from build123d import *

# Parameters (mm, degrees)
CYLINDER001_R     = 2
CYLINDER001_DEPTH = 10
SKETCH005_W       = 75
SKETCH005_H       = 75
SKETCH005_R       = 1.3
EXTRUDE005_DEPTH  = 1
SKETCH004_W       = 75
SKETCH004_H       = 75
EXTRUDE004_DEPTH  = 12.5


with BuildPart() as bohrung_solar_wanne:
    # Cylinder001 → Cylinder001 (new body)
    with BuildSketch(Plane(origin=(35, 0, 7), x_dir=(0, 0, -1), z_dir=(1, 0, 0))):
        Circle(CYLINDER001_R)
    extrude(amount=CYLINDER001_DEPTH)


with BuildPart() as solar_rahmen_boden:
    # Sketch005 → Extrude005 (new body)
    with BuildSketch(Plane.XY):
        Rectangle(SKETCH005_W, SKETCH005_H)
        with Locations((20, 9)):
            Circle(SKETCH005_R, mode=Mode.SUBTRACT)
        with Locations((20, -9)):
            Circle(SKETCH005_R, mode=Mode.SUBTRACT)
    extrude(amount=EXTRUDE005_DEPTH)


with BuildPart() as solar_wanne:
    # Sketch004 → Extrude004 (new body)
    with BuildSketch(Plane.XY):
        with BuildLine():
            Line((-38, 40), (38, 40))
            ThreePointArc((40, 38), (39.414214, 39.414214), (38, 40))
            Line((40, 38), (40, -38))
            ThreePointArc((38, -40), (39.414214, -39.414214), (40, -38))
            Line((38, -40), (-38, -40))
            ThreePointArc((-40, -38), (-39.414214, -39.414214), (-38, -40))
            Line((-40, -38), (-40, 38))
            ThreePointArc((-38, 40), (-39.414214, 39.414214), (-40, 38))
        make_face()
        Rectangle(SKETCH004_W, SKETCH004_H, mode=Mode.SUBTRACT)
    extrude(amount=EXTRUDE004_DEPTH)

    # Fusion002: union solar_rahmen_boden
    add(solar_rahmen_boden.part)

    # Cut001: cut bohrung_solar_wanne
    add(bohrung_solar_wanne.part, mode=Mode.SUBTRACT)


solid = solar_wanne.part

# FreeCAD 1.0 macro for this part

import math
import FreeCAD as App
import Part
import Sketcher

V = App.Vector

doc = App.newDocument("Part")
params = doc.addObject("Spreadsheet::Sheet", "Params")
for row, (alias, value) in enumerate([
    ("sketch1_diameter", "4 mm"),
    ("pad1_length", "10 mm"),
    ("sketch2_diameter", "2.6 mm"),
    ("sketch2_width", "75 mm"),
    ("pad2_length", "1 mm"),
    ("sketch3_radius", "1.999999 mm"),
    ("sketch3_width", "76 mm"),
    ("sketch3_width2", "75 mm"),
    ("pad3_length", "12.5 mm"),
], start=1):
    params.set(f"A{row}", alias)
    params.set(f"B{row}", "=" + value)
    params.setAlias(f"B{row}", alias)

body = doc.addObject("PartDesign::Body", "Body")

# Sketch on YZ plane
sketch1 = body.newObject("Sketcher::SketchObject", "Sketch")
sketch1.AttachmentSupport = (doc.getObject("YZ_Plane"), [""])
sketch1.MapMode = "FlatFace"
sketch1.AttachmentOffset = App.Placement(V(0, 0, 35), App.Rotation())
sketch1.addGeometry(Part.Circle(V(0, 7, 0), V(0, 0, 1), 2), False)
sketch1.addConstraint([
    Sketcher.Constraint("PointOnObject", 0, 3, -2),
    Sketcher.Constraint("Diameter", 0, 4.0),
    Sketcher.Constraint("DistanceY", -1, 1, 0, 3, 7.0),
])
sketch1.setExpression("Constraints[1]", "Params.sketch1_diameter")
pad1 = body.newObject("PartDesign::Pad", "Pad")
pad1.Profile = sketch1
pad1.setExpression("Length", "Params.pad1_length")
body2 = doc.addObject("PartDesign::Body", "Body001")

# Sketch on XY plane
sketch2 = body2.newObject("Sketcher::SketchObject", "Sketch001")
sketch2.AttachmentSupport = (doc.getObject("XY_Plane001"), [""])
sketch2.MapMode = "FlatFace"
sketch2.addGeometry([
    Part.LineSegment(V(-37.5, 37.5, 0), V(-37.5, -37.5, 0)),  # 0
    Part.LineSegment(V(-37.5, -37.5, 0), V(37.5, -37.5, 0)),  # 1
    Part.LineSegment(V(37.5, -37.5, 0), V(37.5, 37.5, 0)),  # 2
    Part.LineSegment(V(37.5, 37.5, 0), V(-37.5, 37.5, 0)),  # 3
    Part.Circle(V(20, -9, 0), V(0, 0, 1), 1.3),  # 4
    Part.Circle(V(20, 9, 0), V(0, 0, 1), 1.3),  # 5
], False)
sketch2.addConstraint([
    Sketcher.Constraint("Coincident", 0, 2, 1, 1),
    Sketcher.Constraint("Coincident", 1, 2, 2, 1),
    Sketcher.Constraint("Coincident", 2, 2, 3, 1),
    Sketcher.Constraint("Coincident", 3, 2, 0, 1),
    Sketcher.Constraint("Vertical", 0),
    Sketcher.Constraint("Horizontal", 1),
    Sketcher.Constraint("Vertical", 2),
    Sketcher.Constraint("Horizontal", 3),
    Sketcher.Constraint("Equal", 4, 5),
    Sketcher.Constraint("Symmetric", 0, 2, 2, 2, -1, 1),
    Sketcher.Constraint("Symmetric", 4, 3, 5, 3, -1),
    Sketcher.Constraint("Equal", 3, 0),
    Sketcher.Constraint("Diameter", 4, 2.6),
    Sketcher.Constraint("DistanceX", 1, 1, 1, 2, 75.0),
    Sketcher.Constraint("DistanceX", -1, 1, 4, 3, 20.0),
    Sketcher.Constraint("DistanceY", 4, 3, -1, 1, 9.0),
])
sketch2.setExpression("Constraints[12]", "Params.sketch2_diameter")
sketch2.setExpression("Constraints[13]", "Params.sketch2_width")
pad2 = body2.newObject("PartDesign::Pad", "Pad001")
pad2.Profile = sketch2
pad2.setExpression("Length", "Params.pad2_length")
body3 = doc.addObject("PartDesign::Body", "Body002")

# Sketch on XY plane
sketch3 = body3.newObject("Sketcher::SketchObject", "Sketch002")
sketch3.AttachmentSupport = (doc.getObject("XY_Plane002"), [""])
sketch3.MapMode = "FlatFace"
sketch3.addGeometry([
    Part.LineSegment(V(38, 40, 0), V(-38, 40, 0)),  # 0
    Part.ArcOfCircle(Part.Circle(V(-38, 38, 0), V(0, 0, 1), 2), math.radians(90), math.radians(180)),  # 1
    Part.LineSegment(V(-40, 38, 0), V(-40, -38, 0)),  # 2
    Part.ArcOfCircle(Part.Circle(V(-38, -38, 0), V(0, 0, 1), 2), math.radians(180), math.radians(270)),  # 3
    Part.LineSegment(V(-38, -40, 0), V(38, -40, 0)),  # 4
    Part.ArcOfCircle(Part.Circle(V(38, -38, 0), V(0, 0, 1), 2), math.radians(-90), math.radians(0)),  # 5
    Part.LineSegment(V(40, -38, 0), V(40, 38, 0)),  # 6
    Part.ArcOfCircle(Part.Circle(V(38, 38, 0), V(0, 0, 1), 2), math.radians(0), math.radians(90)),  # 7
    Part.LineSegment(V(-37.5, -37.5, 0), V(-37.5, 37.5, 0)),  # 8
    Part.LineSegment(V(-37.5, 37.5, 0), V(37.5, 37.5, 0)),  # 9
    Part.LineSegment(V(37.5, 37.5, 0), V(37.5, -37.5, 0)),  # 10
    Part.LineSegment(V(37.5, -37.5, 0), V(-37.5, -37.5, 0)),  # 11
], False)
sketch3.addConstraint([
    Sketcher.Constraint("Tangent", 0, 2, 1, 1),
    Sketcher.Constraint("Tangent", 1, 2, 2, 1),
    Sketcher.Constraint("Tangent", 2, 2, 3, 1),
    Sketcher.Constraint("Tangent", 3, 2, 4, 1),
    Sketcher.Constraint("Tangent", 4, 2, 5, 1),
    Sketcher.Constraint("Tangent", 5, 2, 6, 1),
    Sketcher.Constraint("Tangent", 6, 2, 7, 1),
    Sketcher.Constraint("Tangent", 7, 2, 0, 1),
    Sketcher.Constraint("Coincident", 8, 2, 9, 1),
    Sketcher.Constraint("Coincident", 9, 2, 10, 1),
    Sketcher.Constraint("Coincident", 10, 2, 11, 1),
    Sketcher.Constraint("Coincident", 11, 2, 8, 1),
    Sketcher.Constraint("Horizontal", 0),
    Sketcher.Constraint("Vertical", 2),
    Sketcher.Constraint("Horizontal", 4),
    Sketcher.Constraint("Vertical", 6),
    Sketcher.Constraint("Vertical", 8),
    Sketcher.Constraint("Horizontal", 9),
    Sketcher.Constraint("Vertical", 10),
    Sketcher.Constraint("Horizontal", 11),
    Sketcher.Constraint("Equal", 1, 3),
    Sketcher.Constraint("Equal", 3, 5),
    Sketcher.Constraint("Equal", 5, 7),
    Sketcher.Constraint("Symmetric", 1, 3, 5, 3, -1, 1),
    Sketcher.Constraint("Symmetric", 8, 2, 10, 2, -1, 1),
    Sketcher.Constraint("Equal", 4, 2),
    Sketcher.Constraint("Equal", 11, 8),
    Sketcher.Constraint("Radius", 1, 1.999999),
    Sketcher.Constraint("DistanceX", 0, 2, 0, 1, 76.0),
    Sketcher.Constraint("DistanceX", 9, 1, 9, 2, 75.0),
])
sketch3.setExpression("Constraints[27]", "Params.sketch3_radius")
sketch3.setExpression("Constraints[28]", "Params.sketch3_width")
sketch3.setExpression("Constraints[29]", "Params.sketch3_width2")
pad3 = body3.newObject("PartDesign::Pad", "Pad002")
pad3.Profile = sketch3
pad3.setExpression("Length", "Params.pad3_length")
doc.recompute()

boolean = body3.newObject("PartDesign::Boolean", "Boolean")
boolean.Type = "Fuse"
boolean.addObjects([body2])
doc.recompute()

boolean2 = body3.newObject("PartDesign::Boolean", "Boolean001")
boolean2.Type = "Cut"
boolean2.addObjects([body])

doc.recompute()
